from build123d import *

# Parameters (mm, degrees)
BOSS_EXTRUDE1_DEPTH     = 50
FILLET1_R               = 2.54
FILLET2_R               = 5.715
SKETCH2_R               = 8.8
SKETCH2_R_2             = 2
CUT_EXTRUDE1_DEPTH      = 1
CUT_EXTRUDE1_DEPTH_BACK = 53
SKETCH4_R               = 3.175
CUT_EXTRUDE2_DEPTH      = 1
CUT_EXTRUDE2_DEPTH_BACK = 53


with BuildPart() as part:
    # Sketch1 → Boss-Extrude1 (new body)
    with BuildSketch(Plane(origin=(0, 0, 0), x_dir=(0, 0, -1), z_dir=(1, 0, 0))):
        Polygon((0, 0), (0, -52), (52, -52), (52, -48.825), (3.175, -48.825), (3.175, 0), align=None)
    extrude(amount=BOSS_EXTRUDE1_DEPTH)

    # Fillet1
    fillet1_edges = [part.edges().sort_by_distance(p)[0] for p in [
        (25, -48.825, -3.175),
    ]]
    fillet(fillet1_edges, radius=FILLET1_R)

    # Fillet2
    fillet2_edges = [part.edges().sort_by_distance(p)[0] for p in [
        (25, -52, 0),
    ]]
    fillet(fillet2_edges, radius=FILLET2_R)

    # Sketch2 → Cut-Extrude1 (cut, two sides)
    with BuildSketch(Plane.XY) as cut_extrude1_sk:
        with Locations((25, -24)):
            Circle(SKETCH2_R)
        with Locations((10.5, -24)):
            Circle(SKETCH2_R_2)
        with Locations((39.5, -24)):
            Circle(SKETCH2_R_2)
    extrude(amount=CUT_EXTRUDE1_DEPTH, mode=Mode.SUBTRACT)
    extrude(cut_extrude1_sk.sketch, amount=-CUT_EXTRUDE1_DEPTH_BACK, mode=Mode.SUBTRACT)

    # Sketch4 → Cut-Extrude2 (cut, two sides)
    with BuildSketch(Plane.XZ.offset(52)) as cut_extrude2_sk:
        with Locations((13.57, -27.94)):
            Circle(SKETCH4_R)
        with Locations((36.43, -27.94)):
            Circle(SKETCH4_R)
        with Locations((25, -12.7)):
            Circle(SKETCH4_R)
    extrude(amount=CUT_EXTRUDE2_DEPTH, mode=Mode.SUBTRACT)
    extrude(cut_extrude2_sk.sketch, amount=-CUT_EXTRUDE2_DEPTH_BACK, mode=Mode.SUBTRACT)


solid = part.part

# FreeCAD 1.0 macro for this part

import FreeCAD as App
import Part
import Sketcher
from FreeCAD import Vector


def edges_at(feature, points):
    """Names of the edges that pass closest to the given points."""
    edges = feature.Shape.Edges
    near = lambda p: min(range(len(edges)), key=lambda i: edges[i].distToShape(Part.Vertex(*p))[0])
    return sorted({f"Edge{near(p) + 1}" for p in points})


def add_polygon(sketch, points):
    """Adds a closed chain of lines whose ends are joined by coincident constraints."""
    first, n = sketch.GeometryCount, len(points)
    for a, b in zip(points, points[1:] + points[:1]):
        sketch.addGeometry(Part.LineSegment(App.Vector(*a, 0), App.Vector(*b, 0)), False)
    for i in range(n):
        sketch.addConstraint(Sketcher.Constraint("Coincident", first + i, 2, first + (i + 1) % n, 1))

doc = App.newDocument("Part")
body = doc.addObject("PartDesign::Body", "Body")

# Sketch on YZ plane
sketch1 = doc.addObject("Sketcher::SketchObject", "Sketch")
body.addObject(sketch1)
sketch1.AttachmentSupport = (doc.YZ_Plane, [""])
sketch1.MapMode = "FlatFace"
add_polygon(sketch1, [(0, 0), (-52, 0), (-52, -52), (-48.8, -52), (-48.8, -3.2), (0, -3.2)])  # lines 0-5
sketch1.addConstraint([
    Sketcher.Constraint("Horizontal", 0),
    Sketcher.Constraint("Vertical", 1),
    Sketcher.Constraint("Horizontal", 2),
    Sketcher.Constraint("Vertical", 3),
    Sketcher.Constraint("Horizontal", 4),
    Sketcher.Constraint("Vertical", 5),
    Sketcher.Constraint("Coincident", 5, 2, -1, 1),
    Sketcher.Constraint("Equal", 0, 1),
    Sketcher.Constraint("Equal", 4, 3),
    Sketcher.Constraint("DistanceX", 0, 2, 0, 1, 52.0),
    Sketcher.Constraint("DistanceX", 2, 1, 2, 2, 3.175),
])
pad1 = doc.addObject("PartDesign::Pad", "Pad")
body.addObject(pad1)
pad1.Profile = sketch1
pad1.Length = 50
doc.recompute()

fillet = doc.addObject("PartDesign::Fillet", "Fillet")
body.addObject(fillet)
fillet.Base = (pad1, edges_at(pad1, [(25, -48.825, -3.175)]))
fillet.Radius = 2.54
doc.recompute()

fillet2 = doc.addObject("PartDesign::Fillet", "Fillet001")
body.addObject(fillet2)
fillet2.Base = (fillet, edges_at(fillet, [(25, -52, 0)]))
fillet2.Radius = 5.715

# Sketch on XY plane
sketch2 = doc.addObject("Sketcher::SketchObject", "Sketch001")
body.addObject(sketch2)
sketch2.AttachmentSupport = (doc.XY_Plane, [""])
sketch2.MapMode = "FlatFace"
sketch2.addGeometry([
    Part.Circle(Vector(25, -24, 0), Vector(0, 0, 1), 8.8),
    Part.Circle(Vector(10.5, -24, 0), Vector(0, 0, 1), 2),
    Part.Circle(Vector(39.5, -24, 0), Vector(0, 0, 1), 2),
], False)
sketch2.addConstraint([
    Sketcher.Constraint("Equal", 1, 2),
    Sketcher.Constraint("Horizontal", 0, 3, 1, 3),
    Sketcher.Constraint("Horizontal", 1, 3, 2, 3),
    Sketcher.Constraint("Diameter", 1, 4.0),
    Sketcher.Constraint("Diameter", 0, 17.6),
    Sketcher.Constraint("DistanceX", -1, 1, 0, 3, 25.0),
    Sketcher.Constraint("DistanceY", 0, 3, -1, 1, 24.0),
    Sketcher.Constraint("DistanceX", 1, 3, 2, 3, 29.0),
    Sketcher.Constraint("DistanceX", -1, 1, 1, 3, 10.5),
])
pocket1 = doc.addObject("PartDesign::Pocket", "Pocket")
body.addObject(pocket1)
pocket1.Profile = sketch2
pocket1.Type = "ThroughAll"
pocket1.Midplane = True

# Sketch on XZ plane
sketch3 = doc.addObject("Sketcher::SketchObject", "Sketch002")
body.addObject(sketch3)
sketch3.AttachmentSupport = (doc.XZ_Plane, [""])
sketch3.MapMode = "FlatFace"
sketch3.AttachmentOffset = App.Placement(Vector(0, 0, 52), App.Rotation())
sketch3.addGeometry([
    Part.Circle(Vector(13.6, -27.9, 0), Vector(0, 0, 1), 3.2),
    Part.Circle(Vector(36.4, -27.9, 0), Vector(0, 0, 1), 3.2),
    Part.Circle(Vector(25, -12.7, 0), Vector(0, 0, 1), 3.2),
], False)
sketch3.addConstraint([
    Sketcher.Constraint("Equal", 0, 1),
    Sketcher.Constraint("Equal", 1, 2),
    Sketcher.Constraint("Horizontal", 0, 3, 1, 3),
    Sketcher.Constraint("Diameter", 0, 6.35),
    Sketcher.Constraint("DistanceX", -1, 1, 2, 3, 25.0),
    Sketcher.Constraint("DistanceY", 2, 3, -1, 1, 12.7),
    Sketcher.Constraint("DistanceX", -1, 1, 0, 3, 13.57),
    Sketcher.Constraint("DistanceY", 0, 3, -1, 1, 27.94),
    Sketcher.Constraint("DistanceX", -1, 1, 1, 3, 36.43),
])
pocket2 = doc.addObject("PartDesign::Pocket", "Pocket001")
body.addObject(pocket2)
pocket2.Profile = sketch3
pocket2.Type = "ThroughAll"
pocket2.Midplane = True

doc.recompute()
